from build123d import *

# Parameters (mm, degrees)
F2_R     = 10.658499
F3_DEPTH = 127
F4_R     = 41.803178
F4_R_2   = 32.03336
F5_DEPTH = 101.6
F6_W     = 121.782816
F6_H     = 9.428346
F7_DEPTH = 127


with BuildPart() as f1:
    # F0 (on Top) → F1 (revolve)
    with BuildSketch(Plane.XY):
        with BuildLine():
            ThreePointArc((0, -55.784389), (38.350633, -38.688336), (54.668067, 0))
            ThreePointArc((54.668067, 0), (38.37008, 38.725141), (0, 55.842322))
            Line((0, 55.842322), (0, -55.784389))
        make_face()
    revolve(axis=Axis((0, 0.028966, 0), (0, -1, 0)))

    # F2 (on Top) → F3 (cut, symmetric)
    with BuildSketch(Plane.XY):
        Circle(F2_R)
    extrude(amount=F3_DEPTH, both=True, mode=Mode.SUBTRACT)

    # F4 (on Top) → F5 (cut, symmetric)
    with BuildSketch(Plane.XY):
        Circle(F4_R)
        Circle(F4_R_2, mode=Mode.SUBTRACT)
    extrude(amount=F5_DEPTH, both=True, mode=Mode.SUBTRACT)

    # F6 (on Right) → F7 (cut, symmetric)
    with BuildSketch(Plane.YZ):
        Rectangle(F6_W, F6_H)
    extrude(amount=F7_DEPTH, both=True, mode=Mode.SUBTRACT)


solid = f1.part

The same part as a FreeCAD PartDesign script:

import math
import FreeCAD as App
import Part
import Sketcher

V = App.Vector
Q = App.Units.Quantity


def add_polygon(sketch, points):
    """Adds a closed chain of lines whose ends are joined by coincident constraints."""
    first, n = sketch.GeometryCount, len(points)
    for a, b in zip(points, points[1:] + points[:1]):
        sketch.addGeometry(Part.LineSegment(App.Vector(*a, 0), App.Vector(*b, 0)), False)
    for i in range(n):
        sketch.addConstraint(Sketcher.Constraint("Coincident", first + i, 2, first + (i + 1) % n, 1))

doc = App.newDocument("Part")
body = doc.addObject("PartDesign::Body", "Body")
body.AllowCompound = True

sketch1 = body.newObject("Sketcher::SketchObject", "Sketch")
sketch1.AttachmentSupport = (doc.getObject("XY_Plane"), [""])
sketch1.MapMode = "FlatFace"
sketch1.addGeometry([
    Part.ArcOfCircle(Part.Circle(V(-2, 1, 0), V(0, 0, 1), 57), math.radians(-88), math.radians(-1)),
    Part.ArcOfCircle(Part.Circle(V(-2, -1, 0), V(0, 0, 1), 57), math.radians(1), math.radians(88)),
    Part.LineSegment(V(0, 56, 0), V(0, -56, 0)),
], False)
sketch1.addConstraint([
    Sketcher.Constraint("Coincident", 0, 2, 1, 1),
    Sketcher.Constraint("Coincident", 1, 2, 2, 1),
    Sketcher.Constraint("Coincident", 2, 2, 0, 1),
    Sketcher.Constraint("Vertical", 2),
    Sketcher.Constraint("Equal", 0, 1),
    Sketcher.Constraint("PointOnObject", 0, 2, -1),
    Sketcher.Constraint("PointOnObject", 1, 2, -2),
    Sketcher.Constraint("Radius", 0, Q("2.25 in")),
    Sketcher.Constraint("DistanceY", 2, 2, 2, 1, Q("111.626711 mm")),
    Sketcher.Constraint("DistanceY", 1, 3, 0, 3, Q("2.566701 mm")),
    Sketcher.Constraint("DistanceY", -1, 1, 1, 2, Q("55.842322 mm")),
])
revolution = body.newObject("PartDesign::Revolution", "Revolution")
revolution.Profile = sketch1
revolution.ReferenceAxis = (sketch1, ["V_Axis"])
revolution.Angle = 360

sketch2 = body.newObject("Sketcher::SketchObject", "Sketch001")
sketch2.AttachmentSupport = (doc.getObject("XY_Plane"), [""])
sketch2.MapMode = "FlatFace"
sketch2.addGeometry(Part.Circle(V(0, 0, 0), V(0, 0, 1), 11), False)
sketch2.addConstraint([
    Sketcher.Constraint("Coincident", 0, 3, -1, 1),
    Sketcher.Constraint("Diameter", 0, Q("21.316998 mm")),
])
pocket1 = body.newObject("PartDesign::Pocket", "Pocket")
pocket1.Profile = sketch2
pocket1.Length = Q("10 in")
pocket1.Midplane = True

sketch3 = body.newObject("Sketcher::SketchObject", "Sketch002")
sketch3.AttachmentSupport = (doc.getObject("XY_Plane"), [""])
sketch3.MapMode = "FlatFace"
sketch3.addGeometry([
    Part.Circle(V(0, 0, 0), V(0, 0, 1), 42),
    Part.Circle(V(0, 0, 0), V(0, 0, 1), 32),
], False)
sketch3.addConstraint([
    Sketcher.Constraint("Coincident", 0, 3, -1, 1),
    Sketcher.Constraint("Coincident", 1, 3, -1, 1),
    Sketcher.Constraint("Diameter", 1, Q("64.06672 mm")),
    Sketcher.Constraint("Diameter", 0, Q("83.606356 mm")),
])
pocket2 = body.newObject("PartDesign::Pocket", "Pocket001")
pocket2.Profile = sketch3
pocket2.Length = Q("8 in")
pocket2.Midplane = True

sketch4 = body.newObject("Sketcher::SketchObject", "Sketch003")
sketch4.AttachmentSupport = (doc.getObject("YZ_Plane"), [""])
sketch4.MapMode = "FlatFace"
add_polygon(sketch4, [(-61, 5), (-61, -5), (61, -5), (61, 5)])
sketch4.addConstraint([
    Sketcher.Constraint("Vertical", 0),
    Sketcher.Constraint("Horizontal", 1),
    Sketcher.Constraint("Vertical", 2),
    Sketcher.Constraint("Horizontal", 3),
    Sketcher.Constraint("Symmetric", 0, 2, 2, 2, -1, 1),
    Sketcher.Constraint("DistanceX", 1, 1, 1, 2, Q("121.782816 mm")),
    Sketcher.Constraint("DistanceY", 0, 2, 0, 1, Q("9.428346 mm")),
])
pocket3 = body.newObject("PartDesign::Pocket", "Pocket002")
pocket3.Profile = sketch4
pocket3.Length = Q("10 in")
pocket3.Midplane = True

doc.recompute()
